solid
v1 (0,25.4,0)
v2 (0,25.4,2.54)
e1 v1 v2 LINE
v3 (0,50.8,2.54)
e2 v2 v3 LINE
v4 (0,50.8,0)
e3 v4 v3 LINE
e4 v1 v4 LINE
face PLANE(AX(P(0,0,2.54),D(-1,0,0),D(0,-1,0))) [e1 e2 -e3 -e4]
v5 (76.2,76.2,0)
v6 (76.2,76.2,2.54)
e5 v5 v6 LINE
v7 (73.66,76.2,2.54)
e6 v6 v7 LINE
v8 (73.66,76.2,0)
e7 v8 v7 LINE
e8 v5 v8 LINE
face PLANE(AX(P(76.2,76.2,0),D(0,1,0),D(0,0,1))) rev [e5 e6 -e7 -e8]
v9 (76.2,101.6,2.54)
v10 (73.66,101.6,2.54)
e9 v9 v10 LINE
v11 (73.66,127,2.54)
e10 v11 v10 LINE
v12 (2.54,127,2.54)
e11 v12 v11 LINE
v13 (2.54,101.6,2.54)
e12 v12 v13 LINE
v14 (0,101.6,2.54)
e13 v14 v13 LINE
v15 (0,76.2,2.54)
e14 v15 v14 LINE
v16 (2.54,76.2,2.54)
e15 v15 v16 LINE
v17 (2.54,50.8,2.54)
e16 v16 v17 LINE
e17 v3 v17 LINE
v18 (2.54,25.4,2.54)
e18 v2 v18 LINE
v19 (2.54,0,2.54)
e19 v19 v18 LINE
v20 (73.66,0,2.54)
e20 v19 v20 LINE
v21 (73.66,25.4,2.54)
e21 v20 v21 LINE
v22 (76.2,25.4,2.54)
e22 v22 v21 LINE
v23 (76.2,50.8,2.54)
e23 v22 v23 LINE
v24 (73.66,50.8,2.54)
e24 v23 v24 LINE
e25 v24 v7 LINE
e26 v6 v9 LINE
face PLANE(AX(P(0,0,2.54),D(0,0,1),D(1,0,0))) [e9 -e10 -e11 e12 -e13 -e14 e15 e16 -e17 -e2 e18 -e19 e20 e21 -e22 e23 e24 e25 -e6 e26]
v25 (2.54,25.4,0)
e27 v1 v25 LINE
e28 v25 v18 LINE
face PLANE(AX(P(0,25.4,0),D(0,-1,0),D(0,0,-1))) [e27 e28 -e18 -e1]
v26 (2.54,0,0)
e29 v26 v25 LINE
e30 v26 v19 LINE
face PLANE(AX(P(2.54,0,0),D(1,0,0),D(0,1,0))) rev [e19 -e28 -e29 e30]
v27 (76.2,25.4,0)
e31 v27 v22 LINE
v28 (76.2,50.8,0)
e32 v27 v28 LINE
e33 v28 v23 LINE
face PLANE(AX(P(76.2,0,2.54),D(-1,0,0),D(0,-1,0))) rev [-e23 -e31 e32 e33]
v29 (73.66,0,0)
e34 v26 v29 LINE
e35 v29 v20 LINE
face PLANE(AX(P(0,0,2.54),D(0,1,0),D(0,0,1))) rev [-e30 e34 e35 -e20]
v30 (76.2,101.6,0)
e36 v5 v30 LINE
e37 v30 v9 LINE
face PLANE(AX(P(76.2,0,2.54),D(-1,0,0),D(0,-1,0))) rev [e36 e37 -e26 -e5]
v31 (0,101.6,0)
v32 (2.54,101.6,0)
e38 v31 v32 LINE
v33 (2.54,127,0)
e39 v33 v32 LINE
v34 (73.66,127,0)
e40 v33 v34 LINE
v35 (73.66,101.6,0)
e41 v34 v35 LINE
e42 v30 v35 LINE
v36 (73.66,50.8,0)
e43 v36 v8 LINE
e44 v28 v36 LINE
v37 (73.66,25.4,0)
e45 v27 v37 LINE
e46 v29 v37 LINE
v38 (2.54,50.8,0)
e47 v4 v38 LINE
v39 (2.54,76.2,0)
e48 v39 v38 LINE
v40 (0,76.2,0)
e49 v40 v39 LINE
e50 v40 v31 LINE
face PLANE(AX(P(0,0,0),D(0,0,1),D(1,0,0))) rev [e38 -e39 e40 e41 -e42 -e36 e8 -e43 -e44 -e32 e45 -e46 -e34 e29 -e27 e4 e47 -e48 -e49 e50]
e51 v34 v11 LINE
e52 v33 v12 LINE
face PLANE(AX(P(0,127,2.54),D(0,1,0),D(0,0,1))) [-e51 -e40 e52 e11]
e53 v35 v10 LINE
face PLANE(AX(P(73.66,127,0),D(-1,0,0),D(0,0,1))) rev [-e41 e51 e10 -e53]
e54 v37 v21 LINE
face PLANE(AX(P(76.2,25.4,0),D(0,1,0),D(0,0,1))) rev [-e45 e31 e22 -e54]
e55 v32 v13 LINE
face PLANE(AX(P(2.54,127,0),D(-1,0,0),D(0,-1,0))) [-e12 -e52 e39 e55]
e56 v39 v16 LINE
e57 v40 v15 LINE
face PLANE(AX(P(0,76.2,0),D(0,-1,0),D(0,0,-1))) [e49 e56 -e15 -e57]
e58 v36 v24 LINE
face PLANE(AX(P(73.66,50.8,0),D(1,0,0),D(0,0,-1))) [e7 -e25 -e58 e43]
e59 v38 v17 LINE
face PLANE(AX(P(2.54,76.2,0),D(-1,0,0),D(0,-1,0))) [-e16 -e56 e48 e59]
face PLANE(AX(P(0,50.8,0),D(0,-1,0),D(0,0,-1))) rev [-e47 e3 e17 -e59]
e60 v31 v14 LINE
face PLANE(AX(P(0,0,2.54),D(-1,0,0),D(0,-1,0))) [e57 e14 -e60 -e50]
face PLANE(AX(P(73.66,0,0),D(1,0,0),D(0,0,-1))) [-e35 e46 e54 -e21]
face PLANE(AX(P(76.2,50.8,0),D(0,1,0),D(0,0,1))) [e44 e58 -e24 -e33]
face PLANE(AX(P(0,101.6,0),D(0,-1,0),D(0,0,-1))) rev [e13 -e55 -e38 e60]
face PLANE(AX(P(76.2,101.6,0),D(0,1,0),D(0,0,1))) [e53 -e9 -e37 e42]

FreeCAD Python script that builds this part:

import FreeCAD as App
import Part
import Sketcher
from FreeCAD import Vector
Q = App.Units.Quantity


def add_polygon(sketch, points):
    """Adds a closed chain of lines whose ends are joined by coincident constraints."""
    first, n = sketch.GeometryCount, len(points)
    for a, b in zip(points, points[1:] + points[:1]):
        sketch.addGeometry(Part.LineSegment(App.Vector(*a, 0), App.Vector(*b, 0)), False)
    for i in range(n):
        sketch.addConstraint(Sketcher.Constraint("Coincident", first + i, 2, first + (i + 1) % n, 1))

doc = App.newDocument("Part")
params = doc.addObject("Spreadsheet::Sheet", "Params")
for row, (alias, value) in enumerate([
    ("sketch1_width", "3 in"),
    ("sketch1_height", "5 in"),
    ("pad1_length", "0.1 in"),
    ("sketch2_height", "1 in"),
    ("sketch2_width", "0.1 in"),
    ("sketch3_height", "1 in"),
    ("sketch3_width", "0.1 in"),
    ("sketch4_height", "1 in"),
    ("sketch4_width", "0.1 in"),
], start=1):
    params.set(f"A{row}", alias)
    params.set(f"B{row}", "=" + value)
    params.setAlias(f"B{row}", alias)

body = doc.addObject("PartDesign::Body", "Body")

# Sketch on XY plane
sketch1 = body.newObject("Sketcher::SketchObject", "Sketch")
sketch1.AttachmentSupport = (doc.getObject("XY_Plane"), [""])
sketch1.MapMode = "FlatFace"
add_polygon(sketch1, [(0, 127), (0, 0), (76.2, 0), (76.2, 127)])  # lines 0-3
sketch1.addConstraint(Sketcher.Constraint("Vertical", 0))
sketch1.addConstraint(Sketcher.Constraint("Horizontal", 1))
sketch1.addConstraint(Sketcher.Constraint("Vertical", 2))
sketch1.addConstraint(Sketcher.Constraint("Horizontal", 3))
sketch1.addConstraint(Sketcher.Constraint("Coincident", 0, 2, -1, 1))
sketch1.addConstraint(Sketcher.Constraint("DistanceX", 1, 1, 1, 2, Q("3 in")))
sketch1.addConstraint(Sketcher.Constraint("DistanceY", 0, 2, 0, 1, Q("5 in")))
sketch1.setExpression("Constraints[9]", "Params.sketch1_width")
sketch1.setExpression("Constraints[10]", "Params.sketch1_height")
pad1 = body.newObject("PartDesign::Pad", "Pad")
pad1.Profile = sketch1
pad1.setExpression("Length", "Params.pad1_length")

# Sketch on XY plane
sketch2 = body.newObject("Sketcher::SketchObject", "Sketch001")
sketch2.AttachmentSupport = (doc.getObject("XY_Plane"), [""])
sketch2.MapMode = "FlatFace"
sketch2.AttachmentOffset = App.Placement(Vector(0, 0, 0.1 * 25.4), App.Rotation())
add_polygon(sketch2, [(0, 127), (0, 101.6), (2.54, 101.6), (2.54, 127)])  # lines 0-3
sketch2.addConstraint(Sketcher.Constraint("Vertical", 0))
sketch2.addConstraint(Sketcher.Constraint("Horizontal", 1))
sketch2.addConstraint(Sketcher.Constraint("Vertical", 2))
sketch2.addConstraint(Sketcher.Constraint("Horizontal", 3))
sketch2.addConstraint(Sketcher.Constraint("PointOnObject", 0, 2, -2))
sketch2.addConstraint(Sketcher.Constraint("DistanceY", 0, 2, 0, 1, Q("1 in")))
sketch2.addConstraint(Sketcher.Constraint("DistanceX", 1, 1, 1, 2, Q("0.1 in")))
sketch2.addConstraint(Sketcher.Constraint("DistanceY", -1, 1, 0, 2, Q("4 in")))
sketch2.setExpression("Constraints[9]", "Params.sketch2_height")
sketch2.setExpression("Constraints[10]", "Params.sketch2_width")
pocket1 = body.newObject("PartDesign::Pocket", "Pocket")
pocket1.Profile = sketch2
pocket1.Type = "ThroughAll"

# Sketch on XY plane
sketch3 = body.newObject("Sketcher::SketchObject", "Sketch002")
sketch3.AttachmentSupport = (doc.getObject("XY_Plane"), [""])
sketch3.MapMode = "FlatFace"
sketch3.AttachmentOffset = App.Placement(Vector(0, 0, 0.1 * 25.4), App.Rotation())
add_polygon(sketch3, [(0, 25.4), (0, 0), (2.54, 0), (2.54, 25.4)])  # lines 0-3
add_polygon(sketch3, [(73.66, 25.4), (73.66, 0), (76.2, 0), (76.2, 25.4)])  # lines 4-7
add_polygon(sketch3, [(0, 76.2), (0, 50.8), (2.54, 50.8), (2.54, 76.2)])  # lines 8-11
add_polygon(sketch3, [(73.66, 76.2), (73.66, 50.8), (76.2, 50.8), (76.2, 76.2)])  # lines 12-15
sketch3.addConstraint(Sketcher.Constraint("Vertical", 0))
sketch3.addConstraint(Sketcher.Constraint("Horizontal", 1))
sketch3.addConstraint(Sketcher.Constraint("Vertical", 2))
sketch3.addConstraint(Sketcher.Constraint("Horizontal", 3))
sketch3.addConstraint(Sketcher.Constraint("Vertical", 4))
sketch3.addConstraint(Sketcher.Constraint("Horizontal", 5))
sketch3.addConstraint(Sketcher.Constraint("Vertical", 6))
sketch3.addConstraint(Sketcher.Constraint("Horizontal", 7))
sketch3.addConstraint(Sketcher.Constraint("Vertical", 8))
sketch3.addConstraint(Sketcher.Constraint("Horizontal", 9))
sketch3.addConstraint(Sketcher.Constraint("Vertical", 10))
sketch3.addConstraint(Sketcher.Constraint("Horizontal", 11))
sketch3.addConstraint(Sketcher.Constraint("Vertical", 12))
sketch3.addConstraint(Sketcher.Constraint("Horizontal", 13))
sketch3.addConstraint(Sketcher.Constraint("Vertical", 14))
sketch3.addConstraint(Sketcher.Constraint("Horizontal", 15))
sketch3.addConstraint(Sketcher.Constraint("Coincident", 0, 2, -1, 1))
sketch3.addConstraint(Sketcher.Constraint("PointOnObject", 4, 2, -1))
sketch3.addConstraint(Sketcher.Constraint("PointOnObject", 8, 2, -2))
sketch3.addConstraint(Sketcher.Constraint("Horizontal", 3, 2, 6, 2))
sketch3.addConstraint(Sketcher.Constraint("Horizontal", 9, 2, 12, 2))
sketch3.addConstraint(Sketcher.Constraint("Horizontal", 11, 2, 14, 2))
sketch3.addConstraint(Sketcher.Constraint("Vertical", 2, 2, 9, 2))
sketch3.addConstraint(Sketcher.Constraint("Vertical", 7, 2, 12, 2))
sketch3.addConstraint(Sketcher.Constraint("Vertical", 6, 2, 13, 2))
sketch3.addConstraint(Sketcher.Constraint("Equal", 3, 5))
sketch3.addConstraint(Sketcher.Constraint("Equal", 6, 8))
sketch3.addConstraint(Sketcher.Constraint("DistanceY", 0, 2, 0, 1, Q("1 in")))
sketch3.addConstraint(Sketcher.Constraint("DistanceX", 1, 1, 1, 2, Q("0.1 in")))
sketch3.addConstraint(Sketcher.Constraint("DistanceX", -1, 1, 5, 2, Q("3 in")))
sketch3.addConstraint(Sketcher.Constraint("DistanceY", -1, 1, 8, 2, Q("2 in")))
sketch3.setExpression("Constraints[43]", "Params.sketch3_height")
sketch3.setExpression("Constraints[44]", "Params.sketch3_width")
pocket2 = body.newObject("PartDesign::Pocket", "Pocket001")
pocket2.Profile = sketch3
pocket2.Type = "ThroughAll"

# Sketch on XY plane
sketch4 = body.newObject("Sketcher::SketchObject", "Sketch003")
sketch4.AttachmentSupport = (doc.getObject("XY_Plane"), [""])
sketch4.MapMode = "FlatFace"
sketch4.AttachmentOffset = App.Placement(Vector(0, 0, 0.1 * 25.4), App.Rotation())
add_polygon(sketch4, [(73.66, 127), (73.66, 101.6), (76.2, 101.6), (76.2, 127)])  # lines 0-3
sketch4.addConstraint(Sketcher.Constraint("Vertical", 0))
sketch4.addConstraint(Sketcher.Constraint("Horizontal", 1))
sketch4.addConstraint(Sketcher.Constraint("Vertical", 2))
sketch4.addConstraint(Sketcher.Constraint("Horizontal", 3))
sketch4.addConstraint(Sketcher.Constraint("DistanceY", 0, 2, 0, 1, Q("1 in")))
sketch4.addConstraint(Sketcher.Constraint("DistanceX", 1, 1, 1, 2, Q("0.1 in")))
sketch4.addConstraint(Sketcher.Constraint("DistanceY", -1, 1, 0, 2, Q("4 in")))
sketch4.addConstraint(Sketcher.Constraint("DistanceX", -1, 1, 1, 2, Q("3 in")))
sketch4.setExpression("Constraints[8]", "Params.sketch4_height")
sketch4.setExpression("Constraints[9]", "Params.sketch4_width")
pocket3 = body.newObject("PartDesign::Pocket", "Pocket002")
pocket3.Profile = sketch4
pocket3.Type = "ThroughAll"

doc.recompute()
